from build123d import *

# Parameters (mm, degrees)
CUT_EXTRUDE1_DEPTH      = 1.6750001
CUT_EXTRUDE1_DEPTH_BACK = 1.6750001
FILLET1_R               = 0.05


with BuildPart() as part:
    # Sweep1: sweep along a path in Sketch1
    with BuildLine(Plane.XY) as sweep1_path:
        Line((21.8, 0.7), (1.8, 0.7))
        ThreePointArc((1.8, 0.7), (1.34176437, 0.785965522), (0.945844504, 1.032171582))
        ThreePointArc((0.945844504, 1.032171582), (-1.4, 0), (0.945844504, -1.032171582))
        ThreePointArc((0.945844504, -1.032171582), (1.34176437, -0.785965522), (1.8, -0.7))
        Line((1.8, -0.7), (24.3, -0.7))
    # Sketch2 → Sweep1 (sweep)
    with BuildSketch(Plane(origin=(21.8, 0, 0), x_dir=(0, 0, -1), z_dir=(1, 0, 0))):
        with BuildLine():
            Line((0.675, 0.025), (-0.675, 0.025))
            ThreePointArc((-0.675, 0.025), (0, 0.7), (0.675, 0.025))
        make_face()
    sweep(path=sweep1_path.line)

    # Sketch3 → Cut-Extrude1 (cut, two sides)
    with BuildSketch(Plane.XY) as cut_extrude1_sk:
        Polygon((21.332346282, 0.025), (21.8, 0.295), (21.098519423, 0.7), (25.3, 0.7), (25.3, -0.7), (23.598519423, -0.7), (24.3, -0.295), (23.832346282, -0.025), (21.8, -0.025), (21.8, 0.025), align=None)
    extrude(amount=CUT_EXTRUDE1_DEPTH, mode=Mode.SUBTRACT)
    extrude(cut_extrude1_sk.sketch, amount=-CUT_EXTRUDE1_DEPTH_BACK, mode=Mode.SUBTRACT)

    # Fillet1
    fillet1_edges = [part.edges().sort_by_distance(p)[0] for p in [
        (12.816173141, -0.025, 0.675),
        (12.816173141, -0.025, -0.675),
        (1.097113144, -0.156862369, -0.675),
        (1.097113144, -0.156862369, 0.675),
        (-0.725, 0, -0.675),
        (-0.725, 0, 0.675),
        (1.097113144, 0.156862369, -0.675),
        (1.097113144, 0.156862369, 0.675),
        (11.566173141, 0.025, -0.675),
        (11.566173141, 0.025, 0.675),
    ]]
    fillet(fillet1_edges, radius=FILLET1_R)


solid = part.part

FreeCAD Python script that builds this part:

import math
import FreeCAD as App
import Part
import Sketcher

V = App.Vector
Q = App.Units.Quantity


def edges_at(feature, points):
    """Names of the edges that pass closest to the given points."""
    edges = feature.Shape.Edges
    near = lambda p: min(range(len(edges)), key=lambda i: edges[i].distToShape(Part.Vertex(*p))[0])
    return sorted({f"Edge{near(p) + 1}" for p in points})


def add_polygon(sketch, points):
    """Adds a closed chain of lines whose ends are joined by coincident constraints."""
    first, n = sketch.GeometryCount, len(points)
    for a, b in zip(points, points[1:] + points[:1]):
        sketch.addGeometry(Part.LineSegment(App.Vector(*a, 0), App.Vector(*b, 0)), False)
    for i in range(n):
        sketch.addConstraint(Sketcher.Constraint("Coincident", first + i, 2, first + (i + 1) % n, 1))

doc = App.newDocument("Part")
body = doc.addObject("PartDesign::Body", "Body")

# Sketch on YZ plane
sketch1 = body.newObject("Sketcher::SketchObject", "Sketch")
sketch1.AttachmentSupport = (doc.getObject("YZ_Plane"), [""])
sketch1.MapMode = "FlatFace"
sketch1.AttachmentOffset = App.Placement(V(0, 0, 21.8), App.Rotation())
sketch1.addGeometry(Part.LineSegment(V(0, 0.7, 0), V(0, -0.7, 0)), False)
sketch1.addGeometry(Part.ArcOfCircle(Part.Circle(V(0, 0, 0), V(0, 0, 1), 0.7), math.radians(-90), math.radians(90)), False)
sketch1.addConstraint(Sketcher.Constraint("Coincident", 0, 1, 1, 2))
sketch1.addConstraint(Sketcher.Constraint("Coincident", 1, 1, 0, 2))
sketch1.addConstraint(Sketcher.Constraint("Vertical", 0))
sketch1.addConstraint(Sketcher.Constraint("PointOnObject", 1, 3, -1))
sketch1.addConstraint(Sketcher.Constraint("Vertical", 1, 3, 0, 1))
sketch1.addConstraint(Sketcher.Constraint("Radius", 1, 0.675))
sketch1.addConstraint(Sketcher.Constraint("DistanceX", -1, 1, 1, 3, 0.025))

# Sketch on XY plane
sketch2 = body.newObject("Sketcher::SketchObject", "Sketch001")
sketch2.AttachmentSupport = (doc.getObject("XY_Plane"), [""])
sketch2.MapMode = "FlatFace"
sketch2.addGeometry(Part.LineSegment(V(21.8, 0.7, 0), V(1.8, 0.7, 0)), False)
sketch2.addGeometry(Part.ArcOfCircle(Part.Circle(V(1.8, 2, 0), V(0, 0, 1), 1.3), math.radians(-133), math.radians(-90)), False)
sketch2.addGeometry(Part.ArcOfCircle(Part.Circle(V(0, 0, 0), V(0, 0, 1), 1.4), math.radians(47), math.radians(313)), False)
sketch2.addGeometry(Part.ArcOfCircle(Part.Circle(V(1.8, -2, 0), V(0, 0, 1), 1.3), math.radians(90), math.radians(133)), False)
sketch2.addGeometry(Part.LineSegment(V(1.8, -0.7, 0), V(24.3, -0.7, 0)), False)
sketch2.addConstraint(Sketcher.Constraint("Tangent", 0, 2, 1, 2))
sketch2.addConstraint(Sketcher.Constraint("Tangent", 1, 1, 2, 1))
sketch2.addConstraint(Sketcher.Constraint("Tangent", 2, 2, 3, 2))
sketch2.addConstraint(Sketcher.Constraint("Tangent", 3, 1, 4, 1))
sketch2.addConstraint(Sketcher.Constraint("Horizontal", 0))
sketch2.addConstraint(Sketcher.Constraint("Horizontal", 4))
sketch2.addConstraint(Sketcher.Constraint("Coincident", 2, 3, -1, 1))
sketch2.addConstraint(Sketcher.Constraint("Equal", 1, 3))
sketch2.addConstraint(Sketcher.Constraint("Vertical", 1, 3, 3, 3))
sketch2.addConstraint(Sketcher.Constraint("Radius", 2, 1.4))
sketch2.addConstraint(Sketcher.Constraint("DistanceX", 0, 2, 0, 1, 20.0))
sketch2.addConstraint(Sketcher.Constraint("DistanceX", 4, 1, 4, 2, 22.5))
sketch2.addConstraint(Sketcher.Constraint("DistanceX", -1, 1, 1, 3, 1.8))
sketch2.addConstraint(Sketcher.Constraint("DistanceY", -1, 1, 0, 1, 0.7))
doc.recompute()

additivepipe = body.newObject("PartDesign::AdditivePipe", "AdditivePipe")
additivepipe.Profile = sketch1
additivepipe.Spine = (sketch2, ["Edge1", "Edge2", "Edge3", "Edge4", "Edge5"])

# Sketch on XY plane
sketch3 = body.newObject("Sketcher::SketchObject", "Sketch002")
sketch3.AttachmentSupport = (doc.getObject("XY_Plane"), [""])
sketch3.MapMode = "FlatFace"
add_polygon(sketch3, [(21.8, 0.29), (21.33, 0.03), (21.8, 0.03), (21.8, -0.03), (23.83, -0.03), (24.3, -0.29), (23.6, -0.7), (25.3, -0.7), (25.3, 0.7), (21.1, 0.7)])  # lines 0-9
sketch3.addConstraint(Sketcher.Constraint("Horizontal", 1))
sketch3.addConstraint(Sketcher.Constraint("Vertical", 2))
sketch3.addConstraint(Sketcher.Constraint("Horizontal", 3))
sketch3.addConstraint(Sketcher.Constraint("Horizontal", 6))
sketch3.addConstraint(Sketcher.Constraint("Vertical", 7))
sketch3.addConstraint(Sketcher.Constraint("Horizontal", 8))
sketch3.addConstraint(Sketcher.Constraint("Parallel", 0, 5))
sketch3.addConstraint(Sketcher.Constraint("Parallel", 4, 9))
sketch3.addConstraint(Sketcher.Constraint("Vertical", 2, 2, 9, 2))
sketch3.addConstraint(Sketcher.Constraint("Equal", 0, 4))
sketch3.addConstraint(Sketcher.Constraint("Equal", 5, 9))
sketch3.addConstraint(Sketcher.Constraint("Angle", 0, Q("-150 deg")))
sketch3.addConstraint(Sketcher.Constraint("Angle", 4, Q("-30 deg")))
sketch3.addConstraint(Sketcher.Constraint("DistanceY", 7, 1, 7, 2, 1.4))
sketch3.addConstraint(Sketcher.Constraint("DistanceX", 4, 2, 6, 2, 1.0))
sketch3.addConstraint(Sketcher.Constraint("DistanceY", 2, 2, 2, 1, 0.05))
sketch3.addConstraint(Sketcher.Constraint("DistanceX", -1, 1, 1, 2, 21.8))
sketch3.addConstraint(Sketcher.Constraint("DistanceX", -1, 1, 4, 2, 24.3))
sketch3.addConstraint(Sketcher.Constraint("DistanceY", 5, 2, -1, 1, 0.7))
sketch3.addConstraint(Sketcher.Constraint("Distance", 0, 0.54))
pocket1 = body.newObject("PartDesign::Pocket", "Pocket")
pocket1.Profile = sketch3
pocket1.Type = "ThroughAll"
pocket1.Midplane = True
doc.recompute()

fillet = body.newObject("PartDesign::Fillet", "Fillet")
fillet.Base = (pocket1, edges_at(pocket1, [
    (12.816, -0.025, 0.675),
    (12.816, -0.025, -0.675),
    (1.097, -0.157, -0.675),
    (1.097, -0.157, 0.675),
    (-0.725, 0, -0.675),
    (-0.725, 0, 0.675),
    (1.097, 0.157, -0.675),
    (1.097, 0.157, 0.675),
    (11.566, 0.025, -0.675),
    (11.566, 0.025, 0.675),
]))
fillet.Radius = 0.05

doc.recompute()
